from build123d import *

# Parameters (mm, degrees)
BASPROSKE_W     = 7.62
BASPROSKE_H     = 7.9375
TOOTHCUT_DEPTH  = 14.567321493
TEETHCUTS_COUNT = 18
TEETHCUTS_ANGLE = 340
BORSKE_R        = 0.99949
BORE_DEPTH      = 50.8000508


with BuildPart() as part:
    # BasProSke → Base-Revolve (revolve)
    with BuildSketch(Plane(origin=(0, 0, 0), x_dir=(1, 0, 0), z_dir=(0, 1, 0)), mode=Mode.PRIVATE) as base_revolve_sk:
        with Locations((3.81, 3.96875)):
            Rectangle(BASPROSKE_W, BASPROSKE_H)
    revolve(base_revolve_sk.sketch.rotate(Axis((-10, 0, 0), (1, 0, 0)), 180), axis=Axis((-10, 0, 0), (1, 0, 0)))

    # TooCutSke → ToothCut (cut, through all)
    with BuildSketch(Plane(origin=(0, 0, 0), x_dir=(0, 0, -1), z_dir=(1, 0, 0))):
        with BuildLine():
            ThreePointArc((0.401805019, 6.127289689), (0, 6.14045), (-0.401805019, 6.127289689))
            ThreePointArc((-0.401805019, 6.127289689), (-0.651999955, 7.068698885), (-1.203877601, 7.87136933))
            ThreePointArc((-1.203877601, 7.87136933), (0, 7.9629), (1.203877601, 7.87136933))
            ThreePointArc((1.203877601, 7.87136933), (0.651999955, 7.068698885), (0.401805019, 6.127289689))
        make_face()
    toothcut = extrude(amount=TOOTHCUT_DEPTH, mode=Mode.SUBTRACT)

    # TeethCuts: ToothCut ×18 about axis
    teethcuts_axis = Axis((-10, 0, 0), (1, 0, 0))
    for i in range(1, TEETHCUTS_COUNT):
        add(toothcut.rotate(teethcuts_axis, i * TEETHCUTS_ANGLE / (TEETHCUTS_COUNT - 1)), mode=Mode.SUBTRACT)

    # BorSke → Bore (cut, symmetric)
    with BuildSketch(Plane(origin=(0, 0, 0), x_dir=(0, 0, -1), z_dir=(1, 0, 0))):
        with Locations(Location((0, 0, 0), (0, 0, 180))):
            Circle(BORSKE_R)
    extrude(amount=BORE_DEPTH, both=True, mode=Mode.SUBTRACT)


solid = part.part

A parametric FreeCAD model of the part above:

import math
import FreeCAD as App
import Part
import Sketcher
from FreeCAD import Vector
Q = App.Units.Quantity


def add_polygon(sketch, points):
    """Adds a closed chain of lines whose ends are joined by coincident constraints."""
    first, n = sketch.GeometryCount, len(points)
    for a, b in zip(points, points[1:] + points[:1]):
        sketch.addGeometry(Part.LineSegment(App.Vector(*a, 0), App.Vector(*b, 0)), False)
    for i in range(n):
        sketch.addConstraint(Sketcher.Constraint("Coincident", first + i, 2, first + (i + 1) % n, 1))

doc = App.newDocument("Part")
body = doc.addObject("PartDesign::Body", "Body")

# Sketch on XZ plane
sketch1 = body.newObject("Sketcher::SketchObject", "Sketch")
sketch1.AttachmentSupport = (doc.getObject("XZ_Plane"), [""])
sketch1.MapMode = "FlatFace"
add_polygon(sketch1, [(0, -8), (0, 0), (8, 0), (8, -8)])  # lines 0-3
sketch1.addConstraint([
    Sketcher.Constraint("Vertical", 0),
    Sketcher.Constraint("Horizontal", 1),
    Sketcher.Constraint("Vertical", 2),
    Sketcher.Constraint("Horizontal", 3),
    Sketcher.Constraint("Coincident", 0, 2, -1, 1),
    Sketcher.Constraint("DistanceX", 1, 1, 1, 2, Q("0.3 in")),
    Sketcher.Constraint("DistanceY", 0, 1, 0, 2, Q("0.3125 in")),
])
revolution = body.newObject("PartDesign::Revolution", "Revolution")
revolution.Profile = sketch1
revolution.ReferenceAxis = (sketch1, ["H_Axis"])
revolution.Angle = 360

# Sketch on YZ plane
sketch2 = body.newObject("Sketcher::SketchObject", "Sketch001")
sketch2.AttachmentSupport = (doc.getObject("YZ_Plane"), [""])
sketch2.MapMode = "FlatFace"
sketch2.addGeometry([
    Part.ArcOfCircle(Part.Circle(Vector(0, 0, 0), Vector(0, 0, 1), 6.1), math.radians(-3.75), math.radians(3.75)),
    Part.ArcOfCircle(Part.Circle(Vector(5.9, -3.2, 0), Vector(0, 0, 1), 2.9), math.radians(46), math.radians(85)),
    Part.ArcOfCircle(Part.Circle(Vector(0, 0, 0), Vector(0, 0, 1), 8), math.radians(-8.7), math.radians(8.7)),
    Part.ArcOfCircle(Part.Circle(Vector(5.9, 3.2, 0), Vector(0, 0, 1), 2.9), math.radians(-85), math.radians(-46)),
], False)
sketch2.addConstraint([
    Sketcher.Constraint("Coincident", 0, 1, 1, 2),
    Sketcher.Constraint("Coincident", 1, 1, 2, 1),
    Sketcher.Constraint("Coincident", 2, 2, 3, 2),
    Sketcher.Constraint("Coincident", 3, 1, 0, 2),
    Sketcher.Constraint("Coincident", 0, 3, -1, 1),
    Sketcher.Constraint("Coincident", 2, 3, -1, 1),
    Sketcher.Constraint("Equal", 1, 3),
    Sketcher.Constraint("Symmetric", 1, 3, 3, 3, -1),
    Sketcher.Constraint("Radius", 1, Q("0.1125 in")),
    Sketcher.Constraint("Radius", 2, Q("0.3135 in")),
    Sketcher.Constraint("Radius", 0, Q("6.14045 mm")),
    Sketcher.Constraint("DistanceX", -1, 1, 0, 1, Q("6.12729 mm")),
    Sketcher.Constraint("DistanceX", -1, 1, 1, 1, Q("7.871369 mm")),
])
pocket1 = body.newObject("PartDesign::Pocket", "Pocket")
pocket1.Profile = sketch2
pocket1.Type = "ThroughAll"
pocket1.Reversed = True
doc.recompute()

polarpattern = body.newObject("PartDesign::PolarPattern", "PolarPattern")
polarpattern.Originals = [pocket1]
polarpattern.Axis = (doc.getObject("X_Axis"), [""])
polarpattern.Angle = 360
polarpattern.Occurrences = 18
body.Tip = polarpattern

# Sketch on YZ plane
sketch3 = body.newObject("Sketcher::SketchObject", "Sketch002")
sketch3.AttachmentSupport = (doc.getObject("YZ_Plane"), [""])
sketch3.MapMode = "FlatFace"
sketch3.addGeometry(Part.Circle(Vector(0, 0, 0), Vector(0, 0, 1), 1), False)
sketch3.addConstraint([
    Sketcher.Constraint("Coincident", 0, 3, -1, 1),
    Sketcher.Constraint("Diameter", 0, Q("0.0787 in")),
])
pocket2 = body.newObject("PartDesign::Pocket", "Pocket001")
pocket2.Profile = sketch3
pocket2.Length = 101.600102
pocket2.Midplane = True

doc.recompute()
